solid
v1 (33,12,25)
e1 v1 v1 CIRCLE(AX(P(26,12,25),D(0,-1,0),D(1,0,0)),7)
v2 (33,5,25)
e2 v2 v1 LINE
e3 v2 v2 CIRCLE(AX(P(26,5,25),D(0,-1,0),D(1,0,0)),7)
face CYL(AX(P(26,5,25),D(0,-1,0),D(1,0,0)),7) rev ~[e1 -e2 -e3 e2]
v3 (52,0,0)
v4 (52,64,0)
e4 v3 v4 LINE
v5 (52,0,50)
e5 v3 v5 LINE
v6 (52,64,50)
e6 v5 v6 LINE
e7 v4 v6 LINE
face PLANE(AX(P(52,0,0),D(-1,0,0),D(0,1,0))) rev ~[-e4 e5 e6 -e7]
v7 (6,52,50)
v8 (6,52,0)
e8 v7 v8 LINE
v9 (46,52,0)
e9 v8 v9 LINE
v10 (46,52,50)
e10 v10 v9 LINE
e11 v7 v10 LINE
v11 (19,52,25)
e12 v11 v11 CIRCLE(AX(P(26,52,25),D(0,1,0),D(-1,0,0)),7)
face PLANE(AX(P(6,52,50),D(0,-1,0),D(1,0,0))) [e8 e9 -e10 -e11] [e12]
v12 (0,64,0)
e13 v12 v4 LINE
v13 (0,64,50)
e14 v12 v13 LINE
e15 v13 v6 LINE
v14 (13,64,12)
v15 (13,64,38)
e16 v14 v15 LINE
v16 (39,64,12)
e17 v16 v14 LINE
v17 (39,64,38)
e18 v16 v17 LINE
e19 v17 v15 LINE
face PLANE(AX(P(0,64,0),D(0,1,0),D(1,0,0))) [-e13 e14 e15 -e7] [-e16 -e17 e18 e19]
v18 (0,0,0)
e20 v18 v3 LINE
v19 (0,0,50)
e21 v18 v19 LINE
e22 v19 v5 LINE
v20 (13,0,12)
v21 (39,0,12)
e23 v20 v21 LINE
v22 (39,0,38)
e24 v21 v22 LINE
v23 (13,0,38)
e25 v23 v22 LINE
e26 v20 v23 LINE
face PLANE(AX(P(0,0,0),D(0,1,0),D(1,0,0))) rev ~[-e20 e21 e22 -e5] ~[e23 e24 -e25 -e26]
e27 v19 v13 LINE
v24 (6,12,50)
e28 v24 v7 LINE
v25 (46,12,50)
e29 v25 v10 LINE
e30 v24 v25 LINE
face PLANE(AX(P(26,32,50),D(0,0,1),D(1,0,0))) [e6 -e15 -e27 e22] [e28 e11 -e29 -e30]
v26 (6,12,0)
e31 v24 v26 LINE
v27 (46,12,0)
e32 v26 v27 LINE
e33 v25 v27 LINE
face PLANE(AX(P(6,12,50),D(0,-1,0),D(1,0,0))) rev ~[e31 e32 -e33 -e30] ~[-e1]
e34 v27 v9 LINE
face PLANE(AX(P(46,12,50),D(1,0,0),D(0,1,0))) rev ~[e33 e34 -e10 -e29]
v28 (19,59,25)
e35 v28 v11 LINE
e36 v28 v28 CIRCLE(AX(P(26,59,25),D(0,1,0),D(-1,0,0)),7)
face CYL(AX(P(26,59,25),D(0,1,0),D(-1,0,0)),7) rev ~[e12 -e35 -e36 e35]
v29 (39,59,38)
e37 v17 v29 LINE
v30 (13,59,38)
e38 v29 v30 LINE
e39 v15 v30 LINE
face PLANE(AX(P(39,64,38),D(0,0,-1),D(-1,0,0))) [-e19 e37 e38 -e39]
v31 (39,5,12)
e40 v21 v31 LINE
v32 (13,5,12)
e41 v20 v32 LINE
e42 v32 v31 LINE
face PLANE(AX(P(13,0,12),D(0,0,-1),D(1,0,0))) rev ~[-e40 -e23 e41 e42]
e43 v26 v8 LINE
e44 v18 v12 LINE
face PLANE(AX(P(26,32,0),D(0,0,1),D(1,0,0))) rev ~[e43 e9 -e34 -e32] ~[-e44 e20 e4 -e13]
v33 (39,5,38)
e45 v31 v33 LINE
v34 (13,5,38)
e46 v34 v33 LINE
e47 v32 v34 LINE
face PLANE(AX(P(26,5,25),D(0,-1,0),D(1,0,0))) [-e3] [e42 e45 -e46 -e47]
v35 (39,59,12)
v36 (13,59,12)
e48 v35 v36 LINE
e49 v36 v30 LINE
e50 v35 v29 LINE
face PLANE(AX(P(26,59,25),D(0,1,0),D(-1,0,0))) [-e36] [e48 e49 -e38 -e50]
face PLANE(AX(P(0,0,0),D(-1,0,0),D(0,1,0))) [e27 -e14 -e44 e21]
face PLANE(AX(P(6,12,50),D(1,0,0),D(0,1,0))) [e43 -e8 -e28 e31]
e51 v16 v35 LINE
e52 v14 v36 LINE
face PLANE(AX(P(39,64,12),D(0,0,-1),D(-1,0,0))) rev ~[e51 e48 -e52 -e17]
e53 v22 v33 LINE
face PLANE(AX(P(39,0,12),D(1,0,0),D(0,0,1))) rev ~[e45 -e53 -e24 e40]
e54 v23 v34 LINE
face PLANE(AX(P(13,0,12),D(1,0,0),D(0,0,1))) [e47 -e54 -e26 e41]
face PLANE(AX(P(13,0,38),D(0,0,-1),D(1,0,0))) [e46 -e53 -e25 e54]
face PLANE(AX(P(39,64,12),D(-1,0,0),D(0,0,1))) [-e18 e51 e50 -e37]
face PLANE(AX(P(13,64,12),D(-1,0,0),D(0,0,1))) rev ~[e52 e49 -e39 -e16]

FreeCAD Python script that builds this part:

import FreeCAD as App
import Part
import Sketcher
from FreeCAD import Vector
Q = App.Units.Quantity

doc = App.newDocument("Part")
params = doc.addObject("Spreadsheet::Sheet", "Params")
for row, (alias, value) in enumerate([
    ("sketch1_width", "52 mm"),
    ("sketch1_height", "64 mm"),
    ("pad1_length", "50 mm"),
    ("sketch2_width", "40 mm"),
    ("pocket1_length", "50 mm"),
    ("sketch3_width", "26 mm"),
    ("pocket2_length", "5 mm"),
    ("sketch4_diameter", "14 mm"),
    ("pocket3_length", "40 mm"),
    ("sketch5_width", "26 mm"),
    ("pocket4_length", "5 mm"),
    ("sketch6_diameter", "14 mm"),
    ("pocket5_length", "25 mm"),
], start=1):
    params.set(f"A{row}", alias)
    params.set(f"B{row}", "=" + value)
    params.setAlias(f"B{row}", alias)

body = doc.addObject("PartDesign::Body", "Body")

sketch1 = body.newObject("Sketcher::SketchObject", "Sketch")
sketch1.AttachmentSupport = (doc.getObject("XY_Plane"), [""])
sketch1.MapMode = "FlatFace"
sketch1.addGeometry([
    Part.LineSegment(Vector(0, 64, 0), Vector(0, 0, 0)),
    Part.LineSegment(Vector(0, 0, 0), Vector(52, 0, 0)),
    Part.LineSegment(Vector(52, 0, 0), Vector(52, 64, 0)),
    Part.LineSegment(Vector(52, 64, 0), Vector(0, 64, 0)),
], False)
sketch1.addConstraint([
    Sketcher.Constraint("Coincident", 0, 2, 1, 1),
    Sketcher.Constraint("Coincident", 1, 2, 2, 1),
    Sketcher.Constraint("Coincident", 2, 2, 3, 1),
    Sketcher.Constraint("Coincident", 3, 2, 0, 1),
    Sketcher.Constraint("Vertical", 0),
    Sketcher.Constraint("Horizontal", 1),
    Sketcher.Constraint("Vertical", 2),
    Sketcher.Constraint("Horizontal", 3),
    Sketcher.Constraint("Coincident", 0, 2, -1, 1),
    Sketcher.Constraint("DistanceX", 1, 1, 1, 2, Q("52 mm")),
    Sketcher.Constraint("DistanceY", 0, 2, 0, 1, Q("64 mm")),
])
sketch1.setExpression("Constraints[9]", "Params.sketch1_width")
sketch1.setExpression("Constraints[10]", "Params.sketch1_height")
pad1 = body.newObject("PartDesign::Pad", "Pad")
pad1.Profile = sketch1
pad1.setExpression("Length", "Params.pad1_length")

sketch2 = body.newObject("Sketcher::SketchObject", "Sketch001")
sketch2.AttachmentSupport = (doc.getObject("XY_Plane"), [""])
sketch2.MapMode = "FlatFace"
sketch2.AttachmentOffset = App.Placement(Vector(0, 0, 50), App.Rotation())
sketch2.addGeometry([
    Part.LineSegment(Vector(6, 52, 0), Vector(6, 12, 0)),
    Part.LineSegment(Vector(6, 12, 0), Vector(46, 12, 0)),
    Part.LineSegment(Vector(46, 12, 0), Vector(46, 52, 0)),
    Part.LineSegment(Vector(46, 52, 0), Vector(6, 52, 0)),
], False)
sketch2.addConstraint([
    Sketcher.Constraint("Coincident", 0, 2, 1, 1),
    Sketcher.Constraint("Coincident", 1, 2, 2, 1),
    Sketcher.Constraint("Coincident", 2, 2, 3, 1),
    Sketcher.Constraint("Coincident", 3, 2, 0, 1),
    Sketcher.Constraint("Vertical", 0),
    Sketcher.Constraint("Horizontal", 1),
    Sketcher.Constraint("Vertical", 2),
    Sketcher.Constraint("Horizontal", 3),
    Sketcher.Constraint("Equal", 3, 0),
    Sketcher.Constraint("DistanceX", 1, 1, 1, 2, Q("40 mm")),
    Sketcher.Constraint("DistanceX", -1, 1, 0, 2, Q("6 mm")),
    Sketcher.Constraint("DistanceY", -1, 1, 0, 2, Q("12 mm")),
])
sketch2.setExpression("Constraints[9]", "Params.sketch2_width")
pocket1 = body.newObject("PartDesign::Pocket", "Pocket")
pocket1.Profile = sketch2
pocket1.setExpression("Length", "Params.pocket1_length")

sketch3 = body.newObject("Sketcher::SketchObject", "Sketch002")
sketch3.AttachmentSupport = (doc.getObject("XZ_Plane"), [""])
sketch3.MapMode = "FlatFace"
sketch3.addGeometry([
    Part.LineSegment(Vector(13, 38, 0), Vector(13, 12, 0)),
    Part.LineSegment(Vector(13, 12, 0), Vector(39, 12, 0)),
    Part.LineSegment(Vector(39, 12, 0), Vector(39, 38, 0)),
    Part.LineSegment(Vector(39, 38, 0), Vector(13, 38, 0)),
], False)
sketch3.addConstraint([
    Sketcher.Constraint("Coincident", 0, 2, 1, 1),
    Sketcher.Constraint("Coincident", 1, 2, 2, 1),
    Sketcher.Constraint("Coincident", 2, 2, 3, 1),
    Sketcher.Constraint("Coincident", 3, 2, 0, 1),
    Sketcher.Constraint("Vertical", 0),
    Sketcher.Constraint("Horizontal", 1),
    Sketcher.Constraint("Vertical", 2),
    Sketcher.Constraint("Horizontal", 3),
    Sketcher.Constraint("Equal", 3, 0),
    Sketcher.Constraint("DistanceX", 1, 1, 1, 2, Q("26 mm")),
    Sketcher.Constraint("DistanceX", -1, 1, 0, 2, Q("13 mm")),
    Sketcher.Constraint("DistanceY", -1, 1, 0, 2, Q("12 mm")),
])
sketch3.setExpression("Constraints[9]", "Params.sketch3_width")
pocket2 = body.newObject("PartDesign::Pocket", "Pocket001")
pocket2.Profile = sketch3
pocket2.setExpression("Length", "Params.pocket2_length")

sketch4 = body.newObject("Sketcher::SketchObject", "Sketch003")
sketch4.AttachmentSupport = (doc.getObject("XZ_Plane"), [""])
sketch4.MapMode = "FlatFace"
sketch4.AttachmentOffset = App.Placement(Vector(0, 0, -5), App.Rotation())
sketch4.addGeometry(Part.Circle(Vector(26, 25, 0), Vector(0, 0, 1), 7), False)
sketch4.addConstraint([
    Sketcher.Constraint("Diameter", 0, Q("14 mm")),
    Sketcher.Constraint("DistanceX", -1, 1, 0, 3, Q("26 mm")),
    Sketcher.Constraint("DistanceY", -1, 1, 0, 3, Q("25 mm")),
])
sketch4.setExpression("Constraints[0]", "Params.sketch4_diameter")
pocket3 = body.newObject("PartDesign::Pocket", "Pocket002")
pocket3.Profile = sketch4
pocket3.setExpression("Length", "Params.pocket3_length")

sketch5 = body.newObject("Sketcher::SketchObject", "Sketch004")
sketch5.AttachmentSupport = (doc.getObject("XZ_Plane"), [""])
sketch5.MapMode = "FlatFace"
sketch5.AttachmentOffset = App.Placement(Vector(0, 0, -64), App.Rotation())
sketch5.addGeometry([
    Part.LineSegment(Vector(39, 38, 0), Vector(39, 12, 0)),
    Part.LineSegment(Vector(39, 12, 0), Vector(13, 12, 0)),
    Part.LineSegment(Vector(13, 12, 0), Vector(13, 38, 0)),
    Part.LineSegment(Vector(13, 38, 0), Vector(39, 38, 0)),
], False)
sketch5.addConstraint([
    Sketcher.Constraint("Coincident", 0, 2, 1, 1),
    Sketcher.Constraint("Coincident", 1, 2, 2, 1),
    Sketcher.Constraint("Coincident", 2, 2, 3, 1),
    Sketcher.Constraint("Coincident", 3, 2, 0, 1),
    Sketcher.Constraint("Vertical", 0),
    Sketcher.Constraint("Horizontal", 1),
    Sketcher.Constraint("Vertical", 2),
    Sketcher.Constraint("Horizontal", 3),
    Sketcher.Constraint("Equal", 3, 0),
    Sketcher.Constraint("DistanceX", 1, 2, 1, 1, Q("26 mm")),
    Sketcher.Constraint("DistanceX", -1, 1, 0, 2, Q("39 mm")),
    Sketcher.Constraint("DistanceY", -1, 1, 0, 2, Q("12 mm")),
])
sketch5.setExpression("Constraints[9]", "Params.sketch5_width")
pocket4 = body.newObject("PartDesign::Pocket", "Pocket003")
pocket4.Profile = sketch5
pocket4.setExpression("Length", "Params.pocket4_length")
pocket4.Reversed = True

sketch6 = body.newObject("Sketcher::SketchObject", "Sketch005")
sketch6.AttachmentSupport = (doc.getObject("XZ_Plane"), [""])
sketch6.MapMode = "FlatFace"
sketch6.AttachmentOffset = App.Placement(Vector(0, 0, -59), App.Rotation())
sketch6.addGeometry(Part.Circle(Vector(26, 25, 0), Vector(0, 0, 1), 7), False)
sketch6.addConstraint([
    Sketcher.Constraint("Diameter", 0, Q("14 mm")),
    Sketcher.Constraint("DistanceX", -1, 1, 0, 3, Q("26 mm")),
    Sketcher.Constraint("DistanceY", -1, 1, 0, 3, Q("25 mm")),
])
sketch6.setExpression("Constraints[0]", "Params.sketch6_diameter")
pocket5 = body.newObject("PartDesign::Pocket", "Pocket004")
pocket5.Profile = sketch6
pocket5.setExpression("Length", "Params.pocket5_length")
pocket5.Reversed = True

doc.recompute()
